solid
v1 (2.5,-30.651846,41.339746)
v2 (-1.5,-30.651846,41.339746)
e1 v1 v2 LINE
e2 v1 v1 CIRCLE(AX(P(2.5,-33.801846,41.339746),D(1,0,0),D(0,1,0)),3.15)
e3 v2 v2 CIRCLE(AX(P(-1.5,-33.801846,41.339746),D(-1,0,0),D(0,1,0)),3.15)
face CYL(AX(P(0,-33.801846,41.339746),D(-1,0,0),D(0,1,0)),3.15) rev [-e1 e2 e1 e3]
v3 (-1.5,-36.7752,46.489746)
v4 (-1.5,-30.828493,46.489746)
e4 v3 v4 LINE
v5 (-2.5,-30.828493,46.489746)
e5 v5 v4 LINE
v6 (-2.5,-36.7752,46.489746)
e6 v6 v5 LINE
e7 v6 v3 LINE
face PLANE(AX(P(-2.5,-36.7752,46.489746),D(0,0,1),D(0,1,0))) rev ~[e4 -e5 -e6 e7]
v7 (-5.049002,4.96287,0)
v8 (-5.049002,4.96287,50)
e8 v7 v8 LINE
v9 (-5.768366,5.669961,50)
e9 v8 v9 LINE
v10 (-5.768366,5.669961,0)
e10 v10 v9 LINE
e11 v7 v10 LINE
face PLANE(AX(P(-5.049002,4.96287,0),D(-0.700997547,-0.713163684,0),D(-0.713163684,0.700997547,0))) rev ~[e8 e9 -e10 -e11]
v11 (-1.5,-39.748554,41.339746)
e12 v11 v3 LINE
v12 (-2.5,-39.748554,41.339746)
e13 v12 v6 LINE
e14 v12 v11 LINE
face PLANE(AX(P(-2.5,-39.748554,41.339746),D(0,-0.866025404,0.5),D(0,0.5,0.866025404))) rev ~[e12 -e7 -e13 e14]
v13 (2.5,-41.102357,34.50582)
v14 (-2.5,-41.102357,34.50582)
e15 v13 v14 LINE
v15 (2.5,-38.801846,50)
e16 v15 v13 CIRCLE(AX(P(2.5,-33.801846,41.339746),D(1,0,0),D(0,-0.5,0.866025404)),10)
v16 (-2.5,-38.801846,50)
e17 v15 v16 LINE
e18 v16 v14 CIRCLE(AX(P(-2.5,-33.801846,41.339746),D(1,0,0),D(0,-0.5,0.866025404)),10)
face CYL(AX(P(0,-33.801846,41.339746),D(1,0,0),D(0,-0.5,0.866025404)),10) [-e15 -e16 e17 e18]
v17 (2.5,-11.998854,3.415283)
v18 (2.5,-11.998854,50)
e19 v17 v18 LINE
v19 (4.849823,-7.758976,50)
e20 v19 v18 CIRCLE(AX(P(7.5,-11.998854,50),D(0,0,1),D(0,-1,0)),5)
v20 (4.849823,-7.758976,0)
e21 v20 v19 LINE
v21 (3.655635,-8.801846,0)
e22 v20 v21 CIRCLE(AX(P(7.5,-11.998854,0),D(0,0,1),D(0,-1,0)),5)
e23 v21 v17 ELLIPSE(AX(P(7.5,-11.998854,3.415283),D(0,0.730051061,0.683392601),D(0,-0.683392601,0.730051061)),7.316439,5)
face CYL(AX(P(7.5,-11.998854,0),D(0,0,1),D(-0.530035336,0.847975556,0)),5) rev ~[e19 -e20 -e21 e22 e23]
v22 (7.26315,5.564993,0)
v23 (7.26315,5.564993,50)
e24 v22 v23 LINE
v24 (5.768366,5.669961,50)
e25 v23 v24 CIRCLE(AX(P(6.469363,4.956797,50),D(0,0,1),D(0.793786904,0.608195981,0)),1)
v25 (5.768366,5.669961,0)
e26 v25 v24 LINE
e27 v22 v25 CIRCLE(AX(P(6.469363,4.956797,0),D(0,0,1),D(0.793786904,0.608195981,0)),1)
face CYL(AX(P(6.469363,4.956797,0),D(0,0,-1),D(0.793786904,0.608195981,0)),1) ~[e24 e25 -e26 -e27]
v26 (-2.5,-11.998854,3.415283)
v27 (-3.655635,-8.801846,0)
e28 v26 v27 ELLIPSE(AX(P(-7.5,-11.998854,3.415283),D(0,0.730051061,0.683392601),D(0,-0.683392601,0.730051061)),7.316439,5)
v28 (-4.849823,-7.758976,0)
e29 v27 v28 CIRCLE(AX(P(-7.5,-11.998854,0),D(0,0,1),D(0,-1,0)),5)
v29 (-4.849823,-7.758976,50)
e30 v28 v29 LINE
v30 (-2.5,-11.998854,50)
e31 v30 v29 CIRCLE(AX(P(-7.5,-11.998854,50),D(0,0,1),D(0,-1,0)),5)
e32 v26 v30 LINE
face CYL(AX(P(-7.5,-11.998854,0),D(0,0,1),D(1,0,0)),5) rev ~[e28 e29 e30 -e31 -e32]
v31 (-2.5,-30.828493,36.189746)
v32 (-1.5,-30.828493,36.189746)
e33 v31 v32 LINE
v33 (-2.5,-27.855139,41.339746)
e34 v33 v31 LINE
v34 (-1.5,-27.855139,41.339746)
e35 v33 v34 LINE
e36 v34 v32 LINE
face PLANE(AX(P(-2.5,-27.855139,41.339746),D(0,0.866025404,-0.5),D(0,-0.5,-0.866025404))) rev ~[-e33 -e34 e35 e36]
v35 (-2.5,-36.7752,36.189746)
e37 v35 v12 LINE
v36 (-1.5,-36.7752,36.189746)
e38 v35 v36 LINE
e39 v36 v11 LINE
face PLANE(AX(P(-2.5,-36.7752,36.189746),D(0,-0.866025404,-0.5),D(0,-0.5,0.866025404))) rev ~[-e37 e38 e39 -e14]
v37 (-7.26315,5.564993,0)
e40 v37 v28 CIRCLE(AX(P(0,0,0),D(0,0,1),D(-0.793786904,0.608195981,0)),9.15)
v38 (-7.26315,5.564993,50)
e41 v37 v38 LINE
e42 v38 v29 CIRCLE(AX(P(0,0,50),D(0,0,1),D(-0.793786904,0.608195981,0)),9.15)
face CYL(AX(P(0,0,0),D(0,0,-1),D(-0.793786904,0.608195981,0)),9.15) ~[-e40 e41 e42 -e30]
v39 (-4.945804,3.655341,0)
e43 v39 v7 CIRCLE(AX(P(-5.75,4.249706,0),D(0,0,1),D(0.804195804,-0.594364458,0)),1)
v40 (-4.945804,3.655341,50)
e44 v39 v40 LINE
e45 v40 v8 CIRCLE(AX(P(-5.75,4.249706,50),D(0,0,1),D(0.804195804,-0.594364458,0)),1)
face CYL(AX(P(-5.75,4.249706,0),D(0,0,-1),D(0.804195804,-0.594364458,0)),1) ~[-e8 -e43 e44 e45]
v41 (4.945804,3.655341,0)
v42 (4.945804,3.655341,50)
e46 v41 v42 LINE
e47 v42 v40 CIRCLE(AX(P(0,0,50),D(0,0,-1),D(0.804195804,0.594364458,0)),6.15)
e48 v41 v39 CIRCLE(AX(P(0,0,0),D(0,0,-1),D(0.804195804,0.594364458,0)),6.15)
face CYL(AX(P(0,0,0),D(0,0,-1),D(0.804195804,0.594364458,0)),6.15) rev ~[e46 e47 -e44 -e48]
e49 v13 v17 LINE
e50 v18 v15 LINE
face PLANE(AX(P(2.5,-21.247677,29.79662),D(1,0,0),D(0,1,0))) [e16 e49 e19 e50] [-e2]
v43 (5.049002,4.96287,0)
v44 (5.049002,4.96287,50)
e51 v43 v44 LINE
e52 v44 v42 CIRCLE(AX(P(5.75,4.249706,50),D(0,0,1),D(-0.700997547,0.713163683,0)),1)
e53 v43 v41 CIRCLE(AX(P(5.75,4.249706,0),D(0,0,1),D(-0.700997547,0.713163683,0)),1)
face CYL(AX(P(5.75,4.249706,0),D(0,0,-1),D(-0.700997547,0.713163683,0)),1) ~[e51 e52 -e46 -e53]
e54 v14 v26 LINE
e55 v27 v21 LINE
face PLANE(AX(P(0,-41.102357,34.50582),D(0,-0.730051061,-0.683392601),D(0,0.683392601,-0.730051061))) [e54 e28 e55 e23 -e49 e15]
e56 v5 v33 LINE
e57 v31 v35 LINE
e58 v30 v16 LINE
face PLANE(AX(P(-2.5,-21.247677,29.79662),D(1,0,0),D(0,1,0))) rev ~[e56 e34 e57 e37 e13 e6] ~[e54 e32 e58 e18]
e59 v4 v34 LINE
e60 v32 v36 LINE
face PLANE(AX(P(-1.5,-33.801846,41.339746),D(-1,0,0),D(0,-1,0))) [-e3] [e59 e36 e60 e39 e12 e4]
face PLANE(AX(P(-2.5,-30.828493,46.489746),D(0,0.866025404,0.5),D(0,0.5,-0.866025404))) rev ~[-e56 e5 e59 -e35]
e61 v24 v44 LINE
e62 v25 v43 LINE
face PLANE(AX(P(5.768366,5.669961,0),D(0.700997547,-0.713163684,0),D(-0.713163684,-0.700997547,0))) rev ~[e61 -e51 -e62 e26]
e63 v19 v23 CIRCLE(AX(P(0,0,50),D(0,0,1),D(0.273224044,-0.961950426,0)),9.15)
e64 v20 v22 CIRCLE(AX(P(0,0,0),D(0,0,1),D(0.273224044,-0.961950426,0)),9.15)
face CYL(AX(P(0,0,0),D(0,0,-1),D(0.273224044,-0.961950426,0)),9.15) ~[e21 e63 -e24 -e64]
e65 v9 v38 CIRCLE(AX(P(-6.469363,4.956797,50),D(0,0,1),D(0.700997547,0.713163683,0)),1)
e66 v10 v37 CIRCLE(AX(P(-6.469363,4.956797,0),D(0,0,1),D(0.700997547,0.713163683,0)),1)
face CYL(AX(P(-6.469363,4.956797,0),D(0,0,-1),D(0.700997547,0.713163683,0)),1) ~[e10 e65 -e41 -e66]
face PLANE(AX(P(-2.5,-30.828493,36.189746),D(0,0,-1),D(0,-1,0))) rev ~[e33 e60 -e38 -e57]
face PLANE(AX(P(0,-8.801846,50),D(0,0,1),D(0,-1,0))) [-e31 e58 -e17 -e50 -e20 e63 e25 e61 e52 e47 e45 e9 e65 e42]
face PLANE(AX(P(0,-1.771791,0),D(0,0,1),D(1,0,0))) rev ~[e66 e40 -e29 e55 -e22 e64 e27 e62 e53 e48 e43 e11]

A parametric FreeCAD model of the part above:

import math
import FreeCAD as App
import Part
import Sketcher
from FreeCAD import Vector
Q = App.Units.Quantity


def edges_at(feature, points):
    """Names of the edges that pass closest to the given points."""
    edges = feature.Shape.Edges
    near = lambda p: min(range(len(edges)), key=lambda i: edges[i].distToShape(Part.Vertex(*p))[0])
    return sorted({f"Edge{near(p) + 1}" for p in points})

doc = App.newDocument("Part")
body = doc.addObject("PartDesign::Body", "Body")

# Sketch on XY plane
sketch1 = body.newObject("Sketcher::SketchObject", "Sketch")
sketch1.AttachmentSupport = (doc.getObject("XY_Plane"), [""])
sketch1.MapMode = "FlatFace"
sketch1.addGeometry(Part.ArcOfCircle(Part.Circle(Vector(0, 0, 0), Vector(0, 0, 1), 6.2), math.radians(144), math.radians(396)), False)
sketch1.addGeometry(Part.ArcOfCircle(Part.Circle(Vector(-5.8, 4.2, 0), Vector(0, 0, 1), 1), math.radians(-36), math.radians(45)), False)
sketch1.addGeometry(Part.LineSegment(Vector(-5, 5, 0), Vector(-5.8, 5.7, 0)), False)
sketch1.addGeometry(Part.ArcOfCircle(Part.Circle(Vector(-6.5, 5, 0), Vector(0, 0, 1), 1), math.radians(45), math.radians(143)), False)
sketch1.addGeometry(Part.ArcOfCircle(Part.Circle(Vector(0, 0, 0), Vector(0, 0, 1), 9.2), math.radians(143), math.radians(254)), False)
sketch1.addGeometry(Part.LineSegment(Vector(-2.5, -8.8, 0), Vector(2.5, -8.8, 0)), False)
sketch1.addGeometry(Part.ArcOfCircle(Part.Circle(Vector(0, 0, 0), Vector(0, 0, 1), 9.2), math.radians(-74), math.radians(37)), False)
sketch1.addGeometry(Part.ArcOfCircle(Part.Circle(Vector(6.5, 5, 0), Vector(0, 0, 1), 1), math.radians(37), math.radians(135)), False)
sketch1.addGeometry(Part.LineSegment(Vector(5.8, 5.7, 0), Vector(5, 5, 0)), False)
sketch1.addGeometry(Part.ArcOfCircle(Part.Circle(Vector(5.8, 4.2, 0), Vector(0, 0, 1), 1), math.radians(135), math.radians(216)), False)
sketch1.addConstraint(Sketcher.Constraint("Tangent", 0, 1, 1, 1))
sketch1.addConstraint(Sketcher.Constraint("Tangent", 1, 2, 2, 1))
sketch1.addConstraint(Sketcher.Constraint("Tangent", 2, 2, 3, 1))
sketch1.addConstraint(Sketcher.Constraint("Tangent", 3, 2, 4, 1))
sketch1.addConstraint(Sketcher.Constraint("Coincident", 4, 2, 5, 1))
sketch1.addConstraint(Sketcher.Constraint("Coincident", 5, 2, 6, 1))
sketch1.addConstraint(Sketcher.Constraint("Tangent", 6, 2, 7, 1))
sketch1.addConstraint(Sketcher.Constraint("Tangent", 7, 2, 8, 1))
sketch1.addConstraint(Sketcher.Constraint("Tangent", 8, 2, 9, 1))
sketch1.addConstraint(Sketcher.Constraint("Tangent", 9, 2, 0, 2))
sketch1.addConstraint(Sketcher.Constraint("Horizontal", 5))
sketch1.addConstraint(Sketcher.Constraint("Coincident", 0, 3, -1, 1))
sketch1.addConstraint(Sketcher.Constraint("Coincident", 4, 3, -1, 1))
sketch1.addConstraint(Sketcher.Constraint("Coincident", 6, 3, -1, 1))
sketch1.addConstraint(Sketcher.Constraint("Equal", 1, 3))
sketch1.addConstraint(Sketcher.Constraint("Equal", 4, 6))
sketch1.addConstraint(Sketcher.Constraint("Equal", 3, 7))
sketch1.addConstraint(Sketcher.Constraint("Equal", 7, 9))
sketch1.addConstraint(Sketcher.Constraint("Symmetric", 2, 2, 7, 2, -2))
sketch1.addConstraint(Sketcher.Constraint("Radius", 1, Q("1 mm")))
sketch1.addConstraint(Sketcher.Constraint("DistanceX", 5, 1, 5, 2, Q("5 mm")))
sketch1.addConstraint(Sketcher.Constraint("Radius", 0, Q("6.15 mm")))
sketch1.addConstraint(Sketcher.Constraint("Radius", 4, Q("9.15 mm")))
sketch1.addConstraint(Sketcher.Constraint("DistanceX", 1, 3, 9, 3, Q("11.5 mm")))
sketch1.addConstraint(Sketcher.Constraint("DistanceX", 1, 2, 0, 1, Q("0.103198 mm")))
pad1 = body.newObject("PartDesign::Pad", "Pad")
pad1.Profile = sketch1
pad1.Length = 50

# Sketch on YZ plane
sketch2 = body.newObject("Sketcher::SketchObject", "Sketch001")
sketch2.AttachmentSupport = (doc.getObject("YZ_Plane"), [""])
sketch2.MapMode = "FlatFace"
sketch2.addGeometry(Part.LineSegment(Vector(-41.1, 34.5, 0), Vector(-8.8, 0, 0)), False)
sketch2.addGeometry(Part.LineSegment(Vector(-8.8, 0, 0), Vector(-8.8, 50, 0)), False)
sketch2.addGeometry(Part.LineSegment(Vector(-8.8, 50, 0), Vector(-38.8, 50, 0)), False)
sketch2.addGeometry(Part.ArcOfCircle(Part.Circle(Vector(-33.8, 41.3, 0), Vector(0, 0, 1), 10), math.radians(120), math.radians(223)), False)
sketch2.addGeometry(Part.Circle(Vector(-33.8, 41.3, 0), Vector(0, 0, 1), 3.1), False)
sketch2.addConstraint(Sketcher.Constraint("Coincident", 0, 2, 1, 1))
sketch2.addConstraint(Sketcher.Constraint("Coincident", 1, 2, 2, 1))
sketch2.addConstraint(Sketcher.Constraint("Coincident", 2, 2, 3, 1))
sketch2.addConstraint(Sketcher.Constraint("Tangent", 3, 2, 0, 1))
sketch2.addConstraint(Sketcher.Constraint("Vertical", 1))
sketch2.addConstraint(Sketcher.Constraint("Horizontal", 2))
sketch2.addConstraint(Sketcher.Constraint("Coincident", 4, 3, 3, 3))
sketch2.addConstraint(Sketcher.Constraint("PointOnObject", 0, 2, -1))
sketch2.addConstraint(Sketcher.Constraint("Radius", 3, Q("10 mm")))
sketch2.addConstraint(Sketcher.Constraint("Diameter", 4, Q("6.3 mm")))
sketch2.addConstraint(Sketcher.Constraint("DistanceX", 2, 2, 2, 1, Q("30 mm")))
sketch2.addConstraint(Sketcher.Constraint("DistanceY", 1, 1, 1, 2, Q("50 mm")))
sketch2.addConstraint(Sketcher.Constraint("DistanceX", 3, 3, 0, 2, Q("25 mm")))
sketch2.addConstraint(Sketcher.Constraint("DistanceX", 3, 3, -1, 1, Q("33.801846 mm")))
pad2 = body.newObject("PartDesign::Pad", "Pad001")
pad2.Profile = sketch2
pad2.Length = 5
pad2.Midplane = True

# Sketch on YZ plane
sketch3 = body.newObject("Sketcher::SketchObject", "Sketch002")
sketch3.AttachmentSupport = (doc.getObject("YZ_Plane"), [""])
sketch3.MapMode = "FlatFace"
sketch3.AttachmentOffset = App.Placement(Vector(0, 0, -2.5), App.Rotation())
sketch3.addGeometry(Part.LineSegment(Vector(-36.8, 46.5, 0), Vector(-30.8, 46.5, 0)), False)
sketch3.addGeometry(Part.LineSegment(Vector(-30.8, 46.5, 0), Vector(-27.9, 41.3, 0)), False)
sketch3.addGeometry(Part.LineSegment(Vector(-27.9, 41.3, 0), Vector(-30.8, 36.2, 0)), False)
sketch3.addGeometry(Part.LineSegment(Vector(-30.8, 36.2, 0), Vector(-36.8, 36.2, 0)), False)
sketch3.addGeometry(Part.LineSegment(Vector(-36.8, 36.2, 0), Vector(-39.7, 41.3, 0)), False)
sketch3.addGeometry(Part.LineSegment(Vector(-39.7, 41.3, 0), Vector(-36.8, 46.5, 0)), False)
sketch3.addGeometry(Part.Circle(Vector(-33.8, 41.3, 0), Vector(0, 0, 1), 3.1), False)
sketch3.addConstraint(Sketcher.Constraint("Coincident", 0, 2, 1, 1))
sketch3.addConstraint(Sketcher.Constraint("Coincident", 1, 2, 2, 1))
sketch3.addConstraint(Sketcher.Constraint("Coincident", 2, 2, 3, 1))
sketch3.addConstraint(Sketcher.Constraint("Coincident", 3, 2, 4, 1))
sketch3.addConstraint(Sketcher.Constraint("Coincident", 4, 2, 5, 1))
sketch3.addConstraint(Sketcher.Constraint("Coincident", 5, 2, 0, 1))
sketch3.addConstraint(Sketcher.Constraint("Horizontal", 0))
sketch3.addConstraint(Sketcher.Constraint("Horizontal", 3))
sketch3.addConstraint(Sketcher.Constraint("Parallel", 1, 4))
sketch3.addConstraint(Sketcher.Constraint("Parallel", 2, 5))
sketch3.addConstraint(Sketcher.Constraint("Horizontal", 6, 3, 1, 2))
sketch3.addConstraint(Sketcher.Constraint("Horizontal", 1, 2, 4, 2))
sketch3.addConstraint(Sketcher.Constraint("Vertical", 0, 2, 2, 2))
sketch3.addConstraint(Sketcher.Constraint("Vertical", 3, 2, 5, 2))
sketch3.addConstraint(Sketcher.Constraint("Diameter", 6, Q("6.3 mm")))
sketch3.addConstraint(Sketcher.Constraint("Angle", 1, Q("-60 deg")))
sketch3.addConstraint(Sketcher.Constraint("DistanceY", 2, 2, 0, 2, Q("10.3 mm")))
sketch3.addConstraint(Sketcher.Constraint("DistanceX", 3, 2, -1, 1, Q("36.7752 mm")))
sketch3.addConstraint(Sketcher.Constraint("DistanceX", 0, 1, 0, 2, Q("5.946708 mm")))
sketch3.addConstraint(Sketcher.Constraint("DistanceX", 6, 3, -1, 1, Q("33.801846 mm")))
sketch3.addConstraint(Sketcher.Constraint("DistanceY", -1, 1, 6, 3, Q("41.339746 mm")))
pocket1 = body.newObject("PartDesign::Pocket", "Pocket")
pocket1.Profile = sketch3
pocket1.Length = 1
pocket1.Reversed = True
doc.recompute()

fillet = body.newObject("PartDesign::Fillet", "Fillet")
fillet.Base = (pocket1, edges_at(pocket1, [(2.5, -8.802, 25)]))
fillet.Radius = 5
doc.recompute()

fillet2 = body.newObject("PartDesign::Fillet", "Fillet001")
fillet2.Base = (fillet, edges_at(fillet, [(-2.5, -8.802, 25)]))
fillet2.Radius = 5

doc.recompute()
